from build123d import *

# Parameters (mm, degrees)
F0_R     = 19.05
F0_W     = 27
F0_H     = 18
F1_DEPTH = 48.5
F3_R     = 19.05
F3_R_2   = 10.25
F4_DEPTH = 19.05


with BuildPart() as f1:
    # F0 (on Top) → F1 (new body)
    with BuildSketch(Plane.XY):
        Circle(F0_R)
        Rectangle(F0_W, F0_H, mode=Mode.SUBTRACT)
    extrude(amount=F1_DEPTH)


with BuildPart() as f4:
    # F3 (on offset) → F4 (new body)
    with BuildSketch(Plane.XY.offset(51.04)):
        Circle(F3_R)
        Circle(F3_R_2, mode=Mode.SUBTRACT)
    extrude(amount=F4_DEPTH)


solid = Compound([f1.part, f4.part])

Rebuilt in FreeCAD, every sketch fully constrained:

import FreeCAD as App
import Part
import Sketcher
Q = App.Units.Quantity

doc = App.newDocument("Part")
body = doc.addObject("PartDesign::Body", "Body")

# Sketch on XY plane
sketch1 = body.newObject("Sketcher::SketchObject", "Sketch")
sketch1.AttachmentSupport = (doc.getObject("XY_Plane"), [""])
sketch1.MapMode = "FlatFace"
sketch1.addGeometry(Part.Circle(App.Vector(0, 0, 0), App.Vector(0, 0, 1), 19), False)
sketch1.addGeometry(Part.LineSegment(App.Vector(14, -9, 0), App.Vector(-14, -9, 0)), False)
sketch1.addGeometry(Part.LineSegment(App.Vector(-14, -9, 0), App.Vector(-14, 9, 0)), False)
sketch1.addGeometry(Part.LineSegment(App.Vector(-14, 9, 0), App.Vector(14, 9, 0)), False)
sketch1.addGeometry(Part.LineSegment(App.Vector(14, 9, 0), App.Vector(14, -9, 0)), False)
sketch1.addConstraint(Sketcher.Constraint("Coincident", 1, 2, 2, 1))
sketch1.addConstraint(Sketcher.Constraint("Coincident", 2, 2, 3, 1))
sketch1.addConstraint(Sketcher.Constraint("Coincident", 3, 2, 4, 1))
sketch1.addConstraint(Sketcher.Constraint("Coincident", 4, 2, 1, 1))
sketch1.addConstraint(Sketcher.Constraint("Horizontal", 1))
sketch1.addConstraint(Sketcher.Constraint("Vertical", 2))
sketch1.addConstraint(Sketcher.Constraint("Horizontal", 3))
sketch1.addConstraint(Sketcher.Constraint("Vertical", 4))
sketch1.addConstraint(Sketcher.Constraint("Coincident", 0, 3, -1, 1))
sketch1.addConstraint(Sketcher.Constraint("Symmetric", 1, 2, 3, 2, -1, 1))
sketch1.addConstraint(Sketcher.Constraint("Diameter", 0, Q("38.1 mm")))
sketch1.addConstraint(Sketcher.Constraint("DistanceX", 1, 2, 1, 1, Q("27 mm")))
sketch1.addConstraint(Sketcher.Constraint("DistanceY", 2, 1, 2, 2, Q("18 mm")))
pad1 = body.newObject("PartDesign::Pad", "Pad")
pad1.Profile = sketch1
pad1.Length = 48.5
body2 = doc.addObject("PartDesign::Body", "Body001")

# Sketch on XY plane
sketch2 = body2.newObject("Sketcher::SketchObject", "Sketch001")
sketch2.AttachmentSupport = (doc.getObject("XY_Plane001"), [""])
sketch2.MapMode = "FlatFace"
sketch2.AttachmentOffset = App.Placement(App.Vector(0, 0, 51.04), App.Rotation())
sketch2.addGeometry(Part.Circle(App.Vector(0, 0, 0), App.Vector(0, 0, 1), 19), False)
sketch2.addGeometry(Part.Circle(App.Vector(0, 0, 0), App.Vector(0, 0, 1), 10), False)
sketch2.addConstraint(Sketcher.Constraint("Coincident", 0, 3, -1, 1))
sketch2.addConstraint(Sketcher.Constraint("Coincident", 1, 3, -1, 1))
sketch2.addConstraint(Sketcher.Constraint("Diameter", 0, Q("38.1 mm")))
sketch2.addConstraint(Sketcher.Constraint("Diameter", 1, Q("20.5 mm")))
pad2 = body2.newObject("PartDesign::Pad", "Pad001")
pad2.Profile = sketch2
pad2.Length = 19.05

doc.recompute()
